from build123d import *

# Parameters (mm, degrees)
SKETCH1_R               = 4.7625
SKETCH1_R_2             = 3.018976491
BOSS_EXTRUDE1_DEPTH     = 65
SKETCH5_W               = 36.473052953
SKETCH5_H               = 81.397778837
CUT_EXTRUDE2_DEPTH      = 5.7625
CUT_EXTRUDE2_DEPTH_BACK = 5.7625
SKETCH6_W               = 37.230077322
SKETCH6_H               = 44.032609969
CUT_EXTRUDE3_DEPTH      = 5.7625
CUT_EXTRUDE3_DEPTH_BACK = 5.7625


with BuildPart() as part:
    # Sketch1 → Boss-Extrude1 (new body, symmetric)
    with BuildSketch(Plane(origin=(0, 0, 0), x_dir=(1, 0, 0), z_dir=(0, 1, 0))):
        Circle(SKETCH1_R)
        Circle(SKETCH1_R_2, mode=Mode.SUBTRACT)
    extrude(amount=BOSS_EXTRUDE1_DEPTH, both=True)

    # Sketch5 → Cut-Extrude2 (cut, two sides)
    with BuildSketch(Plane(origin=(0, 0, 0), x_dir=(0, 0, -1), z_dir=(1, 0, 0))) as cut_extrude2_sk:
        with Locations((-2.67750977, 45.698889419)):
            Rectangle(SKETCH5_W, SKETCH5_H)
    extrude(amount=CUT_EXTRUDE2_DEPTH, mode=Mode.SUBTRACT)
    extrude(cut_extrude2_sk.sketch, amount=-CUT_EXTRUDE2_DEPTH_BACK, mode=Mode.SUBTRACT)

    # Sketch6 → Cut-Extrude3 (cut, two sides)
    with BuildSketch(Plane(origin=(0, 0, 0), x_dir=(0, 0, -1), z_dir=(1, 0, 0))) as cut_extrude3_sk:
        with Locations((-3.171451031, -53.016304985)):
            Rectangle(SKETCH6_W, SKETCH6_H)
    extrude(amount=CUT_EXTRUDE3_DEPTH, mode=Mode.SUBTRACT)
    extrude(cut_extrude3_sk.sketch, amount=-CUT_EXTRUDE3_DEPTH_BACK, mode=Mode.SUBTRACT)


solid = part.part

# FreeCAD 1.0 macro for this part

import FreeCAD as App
import Part
import Sketcher

V = App.Vector
Q = App.Units.Quantity

doc = App.newDocument("Part")
params = doc.addObject("Spreadsheet::Sheet", "Params")
for row, (alias, value) in enumerate([
    ("pad1_length", "130 mm"),
], start=1):
    params.set(f"A{row}", alias)
    params.set(f"B{row}", "=" + value)
    params.setAlias(f"B{row}", alias)

body = doc.addObject("PartDesign::Body", "Body")

sketch1 = doc.addObject("Sketcher::SketchObject", "Sketch")
body.addObject(sketch1)
sketch1.AttachmentSupport = (doc.XZ_Plane, [""])
sketch1.MapMode = "FlatFace"
sketch1.addGeometry(Part.Circle(V(0, 0, 0), V(0, 0, 1), 4.8), False)
sketch1.addGeometry(Part.Circle(V(0, 0, 0), V(0, 0, 1), 3), False)
sketch1.addConstraint(Sketcher.Constraint("Coincident", 0, 3, -1, 1))
sketch1.addConstraint(Sketcher.Constraint("Coincident", 1, 3, -1, 1))
sketch1.addConstraint(Sketcher.Constraint("Diameter", 0, Q("9.525 mm")))
sketch1.addConstraint(Sketcher.Constraint("Diameter", 1, Q("6.037953 mm")))
pad1 = doc.addObject("PartDesign::Pad", "Pad")
body.addObject(pad1)
pad1.Profile = sketch1
pad1.setExpression("Length", "Params.pad1_length")
pad1.Midplane = True

sketch2 = doc.addObject("Sketcher::SketchObject", "Sketch001")
body.addObject(sketch2)
sketch2.AttachmentSupport = (doc.YZ_Plane, [""])
sketch2.MapMode = "FlatFace"
sketch2.addGeometry(Part.LineSegment(V(86, 21, 0), V(5, 21, 0)), False)
sketch2.addGeometry(Part.LineSegment(V(5, 21, 0), V(5, -16, 0)), False)
sketch2.addGeometry(Part.LineSegment(V(5, -16, 0), V(86, -16, 0)), False)
sketch2.addGeometry(Part.LineSegment(V(86, -16, 0), V(86, 21, 0)), False)
sketch2.addConstraint(Sketcher.Constraint("Coincident", 0, 2, 1, 1))
sketch2.addConstraint(Sketcher.Constraint("Coincident", 1, 2, 2, 1))
sketch2.addConstraint(Sketcher.Constraint("Coincident", 2, 2, 3, 1))
sketch2.addConstraint(Sketcher.Constraint("Coincident", 3, 2, 0, 1))
sketch2.addConstraint(Sketcher.Constraint("Horizontal", 0))
sketch2.addConstraint(Sketcher.Constraint("Vertical", 1))
sketch2.addConstraint(Sketcher.Constraint("Horizontal", 2))
sketch2.addConstraint(Sketcher.Constraint("Vertical", 3))
sketch2.addConstraint(Sketcher.Constraint("DistanceX", -1, 1, 0, 2, Q("5 mm")))
sketch2.addConstraint(Sketcher.Constraint("DistanceX", 0, 2, 0, 1, Q("81.397779 mm")))
sketch2.addConstraint(Sketcher.Constraint("DistanceY", 1, 2, 1, 1, Q("36.473053 mm")))
sketch2.addConstraint(Sketcher.Constraint("DistanceY", -1, 1, 0, 2, Q("20.914036 mm")))
pocket1 = doc.addObject("PartDesign::Pocket", "Pocket")
body.addObject(pocket1)
pocket1.Profile = sketch2
pocket1.Type = "ThroughAll"
pocket1.Midplane = True

sketch3 = doc.addObject("Sketcher::SketchObject", "Sketch002")
body.addObject(sketch3)
sketch3.AttachmentSupport = (doc.YZ_Plane, [""])
sketch3.MapMode = "FlatFace"
sketch3.addGeometry(Part.LineSegment(V(-31, 22, 0), V(-75, 22, 0)), False)
sketch3.addGeometry(Part.LineSegment(V(-75, 22, 0), V(-75, -15, 0)), False)
sketch3.addGeometry(Part.LineSegment(V(-75, -15, 0), V(-31, -15, 0)), False)
sketch3.addGeometry(Part.LineSegment(V(-31, -15, 0), V(-31, 22, 0)), False)
sketch3.addConstraint(Sketcher.Constraint("Coincident", 0, 2, 1, 1))
sketch3.addConstraint(Sketcher.Constraint("Coincident", 1, 2, 2, 1))
sketch3.addConstraint(Sketcher.Constraint("Coincident", 2, 2, 3, 1))
sketch3.addConstraint(Sketcher.Constraint("Coincident", 3, 2, 0, 1))
sketch3.addConstraint(Sketcher.Constraint("Horizontal", 0))
sketch3.addConstraint(Sketcher.Constraint("Vertical", 1))
sketch3.addConstraint(Sketcher.Constraint("Horizontal", 2))
sketch3.addConstraint(Sketcher.Constraint("Vertical", 3))
sketch3.addConstraint(Sketcher.Constraint("DistanceX", 2, 2, -1, 1, Q("31 mm")))
sketch3.addConstraint(Sketcher.Constraint("DistanceX", 0, 2, 0, 1, Q("44.03261 mm")))
sketch3.addConstraint(Sketcher.Constraint("DistanceY", 1, 2, 1, 1, Q("37.230077 mm")))
sketch3.addConstraint(Sketcher.Constraint("DistanceY", -1, 1, 0, 2, Q("21.78649 mm")))
pocket2 = doc.addObject("PartDesign::Pocket", "Pocket001")
body.addObject(pocket2)
pocket2.Profile = sketch3
pocket2.Type = "ThroughAll"
pocket2.Midplane = True

doc.recompute()
